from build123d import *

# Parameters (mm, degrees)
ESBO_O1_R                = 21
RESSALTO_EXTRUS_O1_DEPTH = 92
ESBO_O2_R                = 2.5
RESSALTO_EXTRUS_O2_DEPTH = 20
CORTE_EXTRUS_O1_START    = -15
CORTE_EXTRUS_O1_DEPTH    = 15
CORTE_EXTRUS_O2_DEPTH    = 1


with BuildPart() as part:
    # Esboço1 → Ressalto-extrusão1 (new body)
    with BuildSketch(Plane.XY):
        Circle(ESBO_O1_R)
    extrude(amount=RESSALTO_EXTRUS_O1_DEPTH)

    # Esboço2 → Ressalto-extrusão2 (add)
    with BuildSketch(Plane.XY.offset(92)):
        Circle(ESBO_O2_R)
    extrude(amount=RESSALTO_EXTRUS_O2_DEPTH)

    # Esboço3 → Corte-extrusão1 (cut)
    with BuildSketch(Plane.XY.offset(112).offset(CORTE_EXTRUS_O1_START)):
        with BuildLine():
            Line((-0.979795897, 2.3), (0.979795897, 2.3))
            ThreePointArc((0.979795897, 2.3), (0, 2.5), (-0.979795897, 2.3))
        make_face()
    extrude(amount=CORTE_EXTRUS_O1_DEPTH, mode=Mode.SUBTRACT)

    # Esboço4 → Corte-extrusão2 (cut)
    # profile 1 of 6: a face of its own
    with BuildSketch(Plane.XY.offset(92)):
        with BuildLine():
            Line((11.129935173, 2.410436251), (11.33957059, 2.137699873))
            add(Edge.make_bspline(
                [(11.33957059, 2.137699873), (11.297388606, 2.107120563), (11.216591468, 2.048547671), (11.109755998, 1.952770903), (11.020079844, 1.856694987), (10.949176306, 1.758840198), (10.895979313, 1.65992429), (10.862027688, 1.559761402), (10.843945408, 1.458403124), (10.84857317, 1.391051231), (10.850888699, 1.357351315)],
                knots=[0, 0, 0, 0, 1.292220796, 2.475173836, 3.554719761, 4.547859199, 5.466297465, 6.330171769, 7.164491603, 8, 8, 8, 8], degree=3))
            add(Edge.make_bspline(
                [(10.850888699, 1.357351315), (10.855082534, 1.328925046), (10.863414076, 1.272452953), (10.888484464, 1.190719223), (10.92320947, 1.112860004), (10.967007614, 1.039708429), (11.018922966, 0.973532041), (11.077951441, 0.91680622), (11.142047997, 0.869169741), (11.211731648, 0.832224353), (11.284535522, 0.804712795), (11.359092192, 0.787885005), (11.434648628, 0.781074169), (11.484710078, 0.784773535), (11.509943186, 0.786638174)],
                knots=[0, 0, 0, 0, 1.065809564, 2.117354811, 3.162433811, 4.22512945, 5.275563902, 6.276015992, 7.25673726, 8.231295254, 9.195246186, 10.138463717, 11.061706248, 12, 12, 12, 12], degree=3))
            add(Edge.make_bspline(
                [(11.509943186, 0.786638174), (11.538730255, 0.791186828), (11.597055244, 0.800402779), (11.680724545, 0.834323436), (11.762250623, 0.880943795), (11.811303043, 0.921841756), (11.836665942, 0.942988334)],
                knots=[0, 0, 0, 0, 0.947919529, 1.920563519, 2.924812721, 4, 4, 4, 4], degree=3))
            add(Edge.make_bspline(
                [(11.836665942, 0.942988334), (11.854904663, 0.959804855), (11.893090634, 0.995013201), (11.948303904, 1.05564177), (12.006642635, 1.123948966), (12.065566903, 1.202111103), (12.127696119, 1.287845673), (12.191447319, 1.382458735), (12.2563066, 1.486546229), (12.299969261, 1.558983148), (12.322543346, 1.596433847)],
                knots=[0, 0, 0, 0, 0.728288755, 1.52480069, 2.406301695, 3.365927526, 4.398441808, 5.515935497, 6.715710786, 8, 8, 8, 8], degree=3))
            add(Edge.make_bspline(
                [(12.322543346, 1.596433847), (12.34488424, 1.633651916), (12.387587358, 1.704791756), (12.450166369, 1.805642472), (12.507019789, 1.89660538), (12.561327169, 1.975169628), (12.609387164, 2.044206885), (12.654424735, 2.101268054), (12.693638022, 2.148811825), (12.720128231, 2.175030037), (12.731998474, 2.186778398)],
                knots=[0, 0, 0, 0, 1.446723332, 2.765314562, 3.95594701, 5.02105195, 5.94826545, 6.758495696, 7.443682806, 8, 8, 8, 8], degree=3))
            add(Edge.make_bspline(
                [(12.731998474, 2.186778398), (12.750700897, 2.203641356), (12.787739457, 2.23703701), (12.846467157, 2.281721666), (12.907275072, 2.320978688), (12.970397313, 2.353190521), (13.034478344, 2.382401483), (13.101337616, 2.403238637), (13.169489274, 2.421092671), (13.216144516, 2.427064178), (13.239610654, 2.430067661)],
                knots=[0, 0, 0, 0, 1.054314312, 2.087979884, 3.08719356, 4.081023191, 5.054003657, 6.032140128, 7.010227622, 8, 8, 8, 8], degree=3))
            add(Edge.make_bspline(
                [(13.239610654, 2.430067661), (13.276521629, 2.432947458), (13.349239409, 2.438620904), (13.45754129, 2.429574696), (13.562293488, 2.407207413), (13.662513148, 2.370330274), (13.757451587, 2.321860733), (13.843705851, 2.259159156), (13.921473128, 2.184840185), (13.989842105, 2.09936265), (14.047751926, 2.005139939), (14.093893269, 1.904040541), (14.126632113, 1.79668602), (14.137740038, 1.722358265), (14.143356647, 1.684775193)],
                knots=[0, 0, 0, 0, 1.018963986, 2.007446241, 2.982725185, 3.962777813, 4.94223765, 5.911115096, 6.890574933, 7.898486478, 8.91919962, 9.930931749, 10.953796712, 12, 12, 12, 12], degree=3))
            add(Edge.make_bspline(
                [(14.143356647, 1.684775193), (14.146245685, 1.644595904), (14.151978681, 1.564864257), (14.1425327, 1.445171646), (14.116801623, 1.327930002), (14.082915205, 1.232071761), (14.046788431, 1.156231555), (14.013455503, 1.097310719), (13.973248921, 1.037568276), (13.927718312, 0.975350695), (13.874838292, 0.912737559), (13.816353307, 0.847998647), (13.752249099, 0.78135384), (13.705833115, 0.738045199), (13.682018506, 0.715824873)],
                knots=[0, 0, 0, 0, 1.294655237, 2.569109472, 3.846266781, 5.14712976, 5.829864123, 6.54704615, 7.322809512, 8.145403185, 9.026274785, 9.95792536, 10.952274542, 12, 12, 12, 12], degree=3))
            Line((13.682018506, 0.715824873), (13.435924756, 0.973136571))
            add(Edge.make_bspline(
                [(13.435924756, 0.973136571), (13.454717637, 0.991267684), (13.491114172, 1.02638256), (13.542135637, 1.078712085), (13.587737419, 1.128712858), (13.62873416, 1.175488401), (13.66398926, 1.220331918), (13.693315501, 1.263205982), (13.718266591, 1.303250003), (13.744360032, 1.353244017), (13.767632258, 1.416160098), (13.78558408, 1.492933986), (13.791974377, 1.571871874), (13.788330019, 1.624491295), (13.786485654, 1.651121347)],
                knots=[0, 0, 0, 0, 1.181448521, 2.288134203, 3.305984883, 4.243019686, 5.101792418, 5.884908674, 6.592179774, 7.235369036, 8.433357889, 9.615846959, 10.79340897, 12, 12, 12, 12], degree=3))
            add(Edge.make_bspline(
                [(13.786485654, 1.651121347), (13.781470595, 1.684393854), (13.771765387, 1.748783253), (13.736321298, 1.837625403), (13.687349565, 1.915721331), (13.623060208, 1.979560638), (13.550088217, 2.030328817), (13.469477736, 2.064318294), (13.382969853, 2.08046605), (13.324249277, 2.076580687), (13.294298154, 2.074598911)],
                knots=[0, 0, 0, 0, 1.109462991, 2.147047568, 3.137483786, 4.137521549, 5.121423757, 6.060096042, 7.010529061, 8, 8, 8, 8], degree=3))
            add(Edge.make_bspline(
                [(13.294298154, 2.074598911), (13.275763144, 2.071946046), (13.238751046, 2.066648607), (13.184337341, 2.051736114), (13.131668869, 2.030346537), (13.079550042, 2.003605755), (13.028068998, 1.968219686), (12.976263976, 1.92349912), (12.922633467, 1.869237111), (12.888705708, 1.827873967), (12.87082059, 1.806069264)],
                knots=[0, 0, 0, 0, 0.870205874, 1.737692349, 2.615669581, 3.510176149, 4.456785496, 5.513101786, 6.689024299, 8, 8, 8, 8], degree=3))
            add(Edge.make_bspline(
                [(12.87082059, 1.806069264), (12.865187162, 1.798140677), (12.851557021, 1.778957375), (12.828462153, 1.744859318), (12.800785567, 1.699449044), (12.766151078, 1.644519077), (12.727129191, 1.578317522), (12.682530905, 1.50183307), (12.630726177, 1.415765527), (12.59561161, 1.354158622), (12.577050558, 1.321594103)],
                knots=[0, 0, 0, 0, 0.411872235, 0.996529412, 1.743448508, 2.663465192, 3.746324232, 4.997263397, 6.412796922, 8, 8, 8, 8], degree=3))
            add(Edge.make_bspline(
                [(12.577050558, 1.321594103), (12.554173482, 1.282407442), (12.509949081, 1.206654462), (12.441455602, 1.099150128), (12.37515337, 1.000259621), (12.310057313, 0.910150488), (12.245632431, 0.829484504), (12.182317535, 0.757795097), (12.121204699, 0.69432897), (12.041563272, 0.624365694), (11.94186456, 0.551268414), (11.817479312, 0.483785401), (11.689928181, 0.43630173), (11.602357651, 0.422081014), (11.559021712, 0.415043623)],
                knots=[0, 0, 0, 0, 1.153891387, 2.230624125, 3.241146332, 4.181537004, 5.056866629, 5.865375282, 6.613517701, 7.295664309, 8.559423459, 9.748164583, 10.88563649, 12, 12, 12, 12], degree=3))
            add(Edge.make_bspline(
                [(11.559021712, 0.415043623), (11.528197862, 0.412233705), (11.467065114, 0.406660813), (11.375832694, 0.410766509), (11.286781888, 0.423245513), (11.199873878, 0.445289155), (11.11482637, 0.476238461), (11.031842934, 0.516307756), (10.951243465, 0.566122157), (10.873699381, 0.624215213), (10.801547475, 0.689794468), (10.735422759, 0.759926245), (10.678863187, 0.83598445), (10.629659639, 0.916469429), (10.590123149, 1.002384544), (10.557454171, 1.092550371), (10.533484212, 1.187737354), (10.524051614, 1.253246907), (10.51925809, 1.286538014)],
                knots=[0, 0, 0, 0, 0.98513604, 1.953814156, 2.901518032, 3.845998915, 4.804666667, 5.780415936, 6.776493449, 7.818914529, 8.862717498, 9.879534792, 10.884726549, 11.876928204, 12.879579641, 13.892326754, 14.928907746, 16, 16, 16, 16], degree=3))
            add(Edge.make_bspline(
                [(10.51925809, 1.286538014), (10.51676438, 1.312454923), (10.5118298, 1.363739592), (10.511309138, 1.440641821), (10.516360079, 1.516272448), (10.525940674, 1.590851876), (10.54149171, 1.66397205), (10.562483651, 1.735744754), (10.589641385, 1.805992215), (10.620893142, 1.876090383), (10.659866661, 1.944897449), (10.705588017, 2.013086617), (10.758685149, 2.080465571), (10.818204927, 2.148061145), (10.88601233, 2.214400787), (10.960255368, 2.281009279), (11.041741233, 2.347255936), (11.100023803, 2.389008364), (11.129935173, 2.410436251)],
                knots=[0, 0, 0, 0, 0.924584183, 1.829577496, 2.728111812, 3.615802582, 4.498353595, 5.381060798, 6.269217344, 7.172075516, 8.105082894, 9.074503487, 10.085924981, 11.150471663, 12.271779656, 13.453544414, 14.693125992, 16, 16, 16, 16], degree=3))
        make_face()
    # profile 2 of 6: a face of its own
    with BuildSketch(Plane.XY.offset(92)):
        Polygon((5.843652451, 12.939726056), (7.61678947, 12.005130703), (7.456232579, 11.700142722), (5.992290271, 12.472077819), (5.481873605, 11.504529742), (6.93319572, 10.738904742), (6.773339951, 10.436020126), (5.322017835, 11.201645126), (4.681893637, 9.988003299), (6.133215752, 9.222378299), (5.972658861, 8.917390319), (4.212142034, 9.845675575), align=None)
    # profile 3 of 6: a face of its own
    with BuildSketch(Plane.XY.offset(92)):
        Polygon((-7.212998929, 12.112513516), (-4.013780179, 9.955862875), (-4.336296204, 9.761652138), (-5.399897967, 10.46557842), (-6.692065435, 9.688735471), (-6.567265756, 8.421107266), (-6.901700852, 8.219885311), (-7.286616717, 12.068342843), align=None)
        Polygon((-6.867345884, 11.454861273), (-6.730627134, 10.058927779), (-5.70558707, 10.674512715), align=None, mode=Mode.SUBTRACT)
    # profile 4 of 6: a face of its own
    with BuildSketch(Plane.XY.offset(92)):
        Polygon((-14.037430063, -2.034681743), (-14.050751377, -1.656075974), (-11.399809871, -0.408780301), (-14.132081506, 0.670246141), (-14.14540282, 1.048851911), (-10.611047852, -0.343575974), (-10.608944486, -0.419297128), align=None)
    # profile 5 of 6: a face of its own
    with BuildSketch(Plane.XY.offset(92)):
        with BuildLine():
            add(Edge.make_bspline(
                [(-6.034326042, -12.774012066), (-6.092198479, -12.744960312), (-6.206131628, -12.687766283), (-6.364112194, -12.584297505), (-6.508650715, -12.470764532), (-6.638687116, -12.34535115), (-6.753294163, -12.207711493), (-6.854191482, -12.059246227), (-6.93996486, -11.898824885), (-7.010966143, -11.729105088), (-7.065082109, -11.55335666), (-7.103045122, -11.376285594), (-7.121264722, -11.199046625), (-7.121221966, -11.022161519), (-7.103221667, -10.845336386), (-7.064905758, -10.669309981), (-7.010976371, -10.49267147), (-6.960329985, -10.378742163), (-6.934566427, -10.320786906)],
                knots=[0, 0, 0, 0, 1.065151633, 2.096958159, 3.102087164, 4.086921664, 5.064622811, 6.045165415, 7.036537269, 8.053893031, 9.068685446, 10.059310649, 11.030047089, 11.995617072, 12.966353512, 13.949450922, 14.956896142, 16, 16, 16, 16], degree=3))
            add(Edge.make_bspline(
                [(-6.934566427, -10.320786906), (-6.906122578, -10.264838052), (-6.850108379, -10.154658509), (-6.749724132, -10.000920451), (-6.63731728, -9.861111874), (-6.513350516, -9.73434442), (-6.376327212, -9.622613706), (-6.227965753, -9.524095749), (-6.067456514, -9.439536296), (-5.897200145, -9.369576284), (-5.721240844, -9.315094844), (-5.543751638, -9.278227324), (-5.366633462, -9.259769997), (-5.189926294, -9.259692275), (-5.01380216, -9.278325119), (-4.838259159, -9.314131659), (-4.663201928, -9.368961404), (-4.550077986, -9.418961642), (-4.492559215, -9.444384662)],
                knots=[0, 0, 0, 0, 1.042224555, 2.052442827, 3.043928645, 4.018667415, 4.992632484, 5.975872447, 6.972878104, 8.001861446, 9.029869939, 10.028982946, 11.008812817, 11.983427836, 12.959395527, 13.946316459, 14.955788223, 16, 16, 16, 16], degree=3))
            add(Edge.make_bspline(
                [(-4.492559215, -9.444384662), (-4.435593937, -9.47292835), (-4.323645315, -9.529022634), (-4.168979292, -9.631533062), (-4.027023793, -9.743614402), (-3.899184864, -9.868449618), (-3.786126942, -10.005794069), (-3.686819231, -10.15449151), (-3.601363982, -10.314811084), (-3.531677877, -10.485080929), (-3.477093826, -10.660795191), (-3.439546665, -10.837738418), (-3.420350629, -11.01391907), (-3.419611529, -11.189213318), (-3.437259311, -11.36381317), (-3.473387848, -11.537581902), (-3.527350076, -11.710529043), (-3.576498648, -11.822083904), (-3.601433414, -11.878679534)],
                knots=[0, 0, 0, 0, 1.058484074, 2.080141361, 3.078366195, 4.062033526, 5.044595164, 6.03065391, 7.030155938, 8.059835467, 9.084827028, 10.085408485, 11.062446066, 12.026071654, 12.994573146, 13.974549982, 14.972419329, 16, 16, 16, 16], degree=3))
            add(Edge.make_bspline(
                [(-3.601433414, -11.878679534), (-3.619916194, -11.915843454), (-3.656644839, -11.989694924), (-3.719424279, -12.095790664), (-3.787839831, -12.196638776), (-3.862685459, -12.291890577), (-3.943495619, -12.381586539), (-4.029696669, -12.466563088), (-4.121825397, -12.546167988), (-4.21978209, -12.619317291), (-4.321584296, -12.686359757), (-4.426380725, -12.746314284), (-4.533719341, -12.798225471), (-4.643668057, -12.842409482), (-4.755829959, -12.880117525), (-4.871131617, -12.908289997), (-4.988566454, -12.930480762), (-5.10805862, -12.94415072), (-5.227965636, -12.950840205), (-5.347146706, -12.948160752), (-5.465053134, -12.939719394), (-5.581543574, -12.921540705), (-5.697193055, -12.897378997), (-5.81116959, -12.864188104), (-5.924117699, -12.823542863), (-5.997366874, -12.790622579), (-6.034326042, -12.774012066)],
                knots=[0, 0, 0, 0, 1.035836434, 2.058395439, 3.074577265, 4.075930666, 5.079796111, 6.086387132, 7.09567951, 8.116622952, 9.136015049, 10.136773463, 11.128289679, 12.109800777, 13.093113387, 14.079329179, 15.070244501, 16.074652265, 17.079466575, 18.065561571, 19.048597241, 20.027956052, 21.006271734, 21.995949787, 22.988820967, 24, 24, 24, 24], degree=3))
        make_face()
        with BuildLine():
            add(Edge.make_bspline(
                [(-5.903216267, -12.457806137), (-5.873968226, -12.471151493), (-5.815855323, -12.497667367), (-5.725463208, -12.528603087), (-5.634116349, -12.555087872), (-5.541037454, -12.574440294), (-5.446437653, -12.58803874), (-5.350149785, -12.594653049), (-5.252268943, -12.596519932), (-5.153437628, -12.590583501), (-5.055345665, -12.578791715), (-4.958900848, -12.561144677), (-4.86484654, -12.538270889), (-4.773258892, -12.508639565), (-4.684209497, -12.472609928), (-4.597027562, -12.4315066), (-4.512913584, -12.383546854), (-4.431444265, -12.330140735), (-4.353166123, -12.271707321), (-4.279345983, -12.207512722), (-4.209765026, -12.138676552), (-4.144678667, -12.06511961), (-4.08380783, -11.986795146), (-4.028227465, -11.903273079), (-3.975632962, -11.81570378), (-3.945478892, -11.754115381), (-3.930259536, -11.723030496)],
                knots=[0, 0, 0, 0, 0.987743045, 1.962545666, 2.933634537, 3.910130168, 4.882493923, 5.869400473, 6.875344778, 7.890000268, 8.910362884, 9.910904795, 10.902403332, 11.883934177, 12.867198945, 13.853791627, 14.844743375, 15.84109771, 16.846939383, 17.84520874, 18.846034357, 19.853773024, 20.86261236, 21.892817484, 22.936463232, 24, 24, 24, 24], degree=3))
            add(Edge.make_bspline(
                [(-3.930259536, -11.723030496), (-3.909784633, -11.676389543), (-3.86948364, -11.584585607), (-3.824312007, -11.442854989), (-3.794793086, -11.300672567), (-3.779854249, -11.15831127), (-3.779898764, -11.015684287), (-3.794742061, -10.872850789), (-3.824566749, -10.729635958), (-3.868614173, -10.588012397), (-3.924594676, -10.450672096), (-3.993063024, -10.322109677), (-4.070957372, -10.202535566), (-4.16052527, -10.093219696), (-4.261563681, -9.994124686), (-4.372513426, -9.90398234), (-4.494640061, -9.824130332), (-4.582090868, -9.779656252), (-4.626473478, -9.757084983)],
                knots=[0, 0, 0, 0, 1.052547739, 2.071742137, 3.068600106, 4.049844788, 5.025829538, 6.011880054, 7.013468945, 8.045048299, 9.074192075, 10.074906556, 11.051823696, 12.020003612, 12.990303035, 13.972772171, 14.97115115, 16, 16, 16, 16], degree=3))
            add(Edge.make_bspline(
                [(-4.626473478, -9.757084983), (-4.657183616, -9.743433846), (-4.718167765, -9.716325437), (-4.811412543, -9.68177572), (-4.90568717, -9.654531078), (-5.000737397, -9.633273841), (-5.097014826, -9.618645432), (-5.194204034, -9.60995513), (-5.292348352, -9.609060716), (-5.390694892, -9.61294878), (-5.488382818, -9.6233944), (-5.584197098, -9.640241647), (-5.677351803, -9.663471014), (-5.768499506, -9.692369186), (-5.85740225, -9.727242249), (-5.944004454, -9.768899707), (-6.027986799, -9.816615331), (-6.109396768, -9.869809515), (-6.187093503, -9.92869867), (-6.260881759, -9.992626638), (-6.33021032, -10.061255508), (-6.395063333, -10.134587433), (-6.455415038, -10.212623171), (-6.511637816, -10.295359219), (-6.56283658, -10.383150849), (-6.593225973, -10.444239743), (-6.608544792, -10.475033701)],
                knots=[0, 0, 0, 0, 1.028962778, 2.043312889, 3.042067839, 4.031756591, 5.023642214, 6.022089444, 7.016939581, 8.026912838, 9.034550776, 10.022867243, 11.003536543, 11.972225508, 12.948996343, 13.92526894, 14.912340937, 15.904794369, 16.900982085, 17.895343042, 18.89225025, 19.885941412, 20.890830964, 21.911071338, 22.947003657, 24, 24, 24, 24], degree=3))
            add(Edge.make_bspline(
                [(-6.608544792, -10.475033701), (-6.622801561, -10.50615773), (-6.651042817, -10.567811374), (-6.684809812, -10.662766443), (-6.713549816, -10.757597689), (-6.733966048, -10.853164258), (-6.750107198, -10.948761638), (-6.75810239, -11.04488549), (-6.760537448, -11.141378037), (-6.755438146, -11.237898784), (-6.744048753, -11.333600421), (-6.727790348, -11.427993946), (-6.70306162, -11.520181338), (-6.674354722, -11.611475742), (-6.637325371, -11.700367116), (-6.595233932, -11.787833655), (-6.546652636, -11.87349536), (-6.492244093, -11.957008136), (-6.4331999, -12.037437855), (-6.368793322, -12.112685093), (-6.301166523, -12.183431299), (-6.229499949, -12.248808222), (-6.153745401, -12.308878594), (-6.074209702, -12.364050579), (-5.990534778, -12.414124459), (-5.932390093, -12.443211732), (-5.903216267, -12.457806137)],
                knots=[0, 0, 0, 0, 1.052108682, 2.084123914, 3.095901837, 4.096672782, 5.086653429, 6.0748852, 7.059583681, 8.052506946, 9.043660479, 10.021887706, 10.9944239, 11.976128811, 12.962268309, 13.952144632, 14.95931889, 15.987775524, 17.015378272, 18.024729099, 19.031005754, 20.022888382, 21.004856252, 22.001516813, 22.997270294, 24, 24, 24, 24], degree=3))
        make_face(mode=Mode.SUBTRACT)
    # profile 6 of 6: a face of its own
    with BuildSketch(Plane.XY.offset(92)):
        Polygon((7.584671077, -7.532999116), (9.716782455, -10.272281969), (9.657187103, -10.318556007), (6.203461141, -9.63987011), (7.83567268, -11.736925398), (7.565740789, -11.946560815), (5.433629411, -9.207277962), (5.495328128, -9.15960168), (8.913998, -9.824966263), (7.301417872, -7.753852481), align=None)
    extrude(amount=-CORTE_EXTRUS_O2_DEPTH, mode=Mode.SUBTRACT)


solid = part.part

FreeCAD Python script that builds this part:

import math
import FreeCAD as App
import Part
import Sketcher

V = App.Vector


def add_polygon(sketch, points):
    """Adds a closed chain of lines whose ends are joined by coincident constraints."""
    first, n = sketch.GeometryCount, len(points)
    for a, b in zip(points, points[1:] + points[:1]):
        sketch.addGeometry(Part.LineSegment(App.Vector(*a, 0), App.Vector(*b, 0)), False)
    for i in range(n):
        sketch.addConstraint(Sketcher.Constraint("Coincident", first + i, 2, first + (i + 1) % n, 1))

doc = App.newDocument("Part")
body = doc.addObject("PartDesign::Body", "Body")

sketch1 = doc.addObject("Sketcher::SketchObject", "Sketch")
body.addObject(sketch1)
sketch1.AttachmentSupport = (doc.XY_Plane, [""])
sketch1.MapMode = "FlatFace"
sketch1.addGeometry(Part.Circle(V(0, 0, 0), V(0, 0, 1), 21), False)
sketch1.addConstraint([
    Sketcher.Constraint("Coincident", 0, 3, -1, 1),
    Sketcher.Constraint("Diameter", 0, 42.0),
])
pad1 = doc.addObject("PartDesign::Pad", "Pad")
body.addObject(pad1)
pad1.Profile = sketch1
pad1.Length = 92

sketch2 = doc.addObject("Sketcher::SketchObject", "Sketch001")
body.addObject(sketch2)
sketch2.AttachmentSupport = (doc.XY_Plane, [""])
sketch2.MapMode = "FlatFace"
sketch2.AttachmentOffset = App.Placement(V(0, 0, 92), App.Rotation())
sketch2.addGeometry(Part.Circle(V(0, 0, 0), V(0, 0, 1), 2.5), False)
sketch2.addConstraint([
    Sketcher.Constraint("Coincident", 0, 3, -1, 1),
    Sketcher.Constraint("Diameter", 0, 5.0),
])
pad2 = doc.addObject("PartDesign::Pad", "Pad001")
body.addObject(pad2)
pad2.Profile = sketch2
pad2.Length = 20

sketch3 = doc.addObject("Sketcher::SketchObject", "Sketch002")
body.addObject(sketch3)
sketch3.AttachmentSupport = (doc.XY_Plane, [""])
sketch3.MapMode = "FlatFace"
sketch3.AttachmentOffset = App.Placement(V(0, 0, 97), App.Rotation())
sketch3.addGeometry([
    Part.LineSegment(V(-1, 2.3, 0), V(1, 2.3, 0)),
    Part.ArcOfCircle(Part.Circle(V(0, 0, 0), V(0, 0, 1), 2.5), math.radians(67), math.radians(113)),
], False)
sketch3.addConstraint([
    Sketcher.Constraint("Coincident", 0, 1, 1, 2),
    Sketcher.Constraint("Coincident", 1, 1, 0, 2),
    Sketcher.Constraint("Horizontal", 0),
    Sketcher.Constraint("Coincident", 1, 3, -1, 1),
    Sketcher.Constraint("Radius", 1, 2.5),
    Sketcher.Constraint("DistanceY", -1, 1, 0, 1, 2.3),
])
pocket1 = doc.addObject("PartDesign::Pocket", "Pocket")
body.addObject(pocket1)
pocket1.Profile = sketch3
pocket1.Length = 15
pocket1.Reversed = True

sketch4 = doc.addObject("Sketcher::SketchObject", "Sketch003")
body.addObject(sketch4)
sketch4.AttachmentSupport = (doc.XY_Plane, [""])
sketch4.MapMode = "FlatFace"
sketch4.AttachmentOffset = App.Placement(V(0, 0, 92), App.Rotation())
sketch4.addGeometry(Part.LineSegment(V(11.339571, 2.1377, 0), V(11.129935, 2.410436, 0)), False)
sketch4.addGeometry(Part.BSplineCurve([V(10.519258, 1.286538, 0), V(10.516764, 1.312455, 0), V(10.51183, 1.36374, 0), V(10.511309, 1.440642, 0), V(10.51636, 1.516272, 0), V(10.525941, 1.590852, 0), V(10.541492, 1.663972, 0), V(10.562484, 1.735745, 0), V(10.589641, 1.805992, 0), V(10.620893, 1.87609, 0), V(10.659867, 1.944897, 0), V(10.705588, 2.013087, 0), V(10.758685, 2.080466, 0), V(10.818205, 2.148061, 0), V(10.886012, 2.214401, 0), V(10.960255, 2.281009, 0), V(11.041741, 2.347256, 0), V(11.100024, 2.389008, 0), V(11.129935, 2.410436, 0)], [4, 1, 1, 1, 1, 1, 1, 1, 1, 1, 1, 1, 1, 1, 1, 1, 4], [0, 0.924584183, 1.829577496, 2.728111812, 3.615802582, 4.498353595, 5.381060798, 6.269217344, 7.172075516, 8.105082894, 9.074503487, 10.085924981, 11.150471663, 12.271779656, 13.453544414, 14.693125992, 16], False, 3, [1, 1, 1, 1, 1, 1, 1, 1, 1, 1, 1, 1, 1, 1, 1, 1, 1, 1, 1], False), False)
sketch4.addGeometry(Part.BSplineCurve([V(11.559022, 0.415044, 0), V(11.528198, 0.412234, 0), V(11.467065, 0.406661, 0), V(11.375833, 0.410767, 0), V(11.286782, 0.423246, 0), V(11.199874, 0.445289, 0), V(11.114826, 0.476238, 0), V(11.031843, 0.516308, 0), V(10.951243, 0.566122, 0), V(10.873699, 0.624215, 0), V(10.801547, 0.689794, 0), V(10.735423, 0.759926, 0), V(10.678863, 0.835984, 0), V(10.62966, 0.916469, 0), V(10.590123, 1.002385, 0), V(10.557454, 1.09255, 0), V(10.533484, 1.187737, 0), V(10.524052, 1.253247, 0), V(10.519258, 1.286538, 0)], [4, 1, 1, 1, 1, 1, 1, 1, 1, 1, 1, 1, 1, 1, 1, 1, 4], [0, 0.98513604, 1.953814156, 2.901518032, 3.845998915, 4.804666667, 5.780415936, 6.776493449, 7.818914529, 8.862717498, 9.879534792, 10.884726549, 11.876928204, 12.879579641, 13.892326754, 14.928907746, 16], False, 3, [1, 1, 1, 1, 1, 1, 1, 1, 1, 1, 1, 1, 1, 1, 1, 1, 1, 1, 1], False), False)
sketch4.addGeometry(Part.BSplineCurve([V(12.577051, 1.321594, 0), V(12.554173, 1.282407, 0), V(12.509949, 1.206654, 0), V(12.441456, 1.09915, 0), V(12.375153, 1.00026, 0), V(12.310057, 0.91015, 0), V(12.245632, 0.829485, 0), V(12.182318, 0.757795, 0), V(12.121205, 0.694329, 0), V(12.041563, 0.624366, 0), V(11.941865, 0.551268, 0), V(11.817479, 0.483785, 0), V(11.689928, 0.436302, 0), V(11.602358, 0.422081, 0), V(11.559022, 0.415044, 0)], [4, 1, 1, 1, 1, 1, 1, 1, 1, 1, 1, 1, 4], [0, 1.153891387, 2.230624125, 3.241146332, 4.181537004, 5.056866629, 5.865375282, 6.613517701, 7.295664309, 8.559423459, 9.748164583, 10.88563649, 12], False, 3, [1, 1, 1, 1, 1, 1, 1, 1, 1, 1, 1, 1, 1, 1, 1], False), False)
sketch4.addGeometry(Part.BSplineCurve([V(12.870821, 1.806069, 0), V(12.865187, 1.798141, 0), V(12.851557, 1.778957, 0), V(12.828462, 1.744859, 0), V(12.800786, 1.699449, 0), V(12.766151, 1.644519, 0), V(12.727129, 1.578318, 0), V(12.682531, 1.501833, 0), V(12.630726, 1.415766, 0), V(12.595612, 1.354159, 0), V(12.577051, 1.321594, 0)], [4, 1, 1, 1, 1, 1, 1, 1, 4], [0, 0.411872235, 0.996529412, 1.743448508, 2.663465192, 3.746324232, 4.997263397, 6.412796922, 8], False, 3, [1, 1, 1, 1, 1, 1, 1, 1, 1, 1, 1], False), False)
sketch4.addGeometry(Part.BSplineCurve([V(13.294298, 2.074599, 0), V(13.275763, 2.071946, 0), V(13.238751, 2.066649, 0), V(13.184337, 2.051736, 0), V(13.131669, 2.030347, 0), V(13.07955, 2.003606, 0), V(13.028069, 1.96822, 0), V(12.976264, 1.923499, 0), V(12.922633, 1.869237, 0), V(12.888706, 1.827874, 0), V(12.870821, 1.806069, 0)], [4, 1, 1, 1, 1, 1, 1, 1, 4], [0, 0.870205874, 1.737692349, 2.615669581, 3.510176149, 4.456785496, 5.513101786, 6.689024299, 8], False, 3, [1, 1, 1, 1, 1, 1, 1, 1, 1, 1, 1], False), False)
sketch4.addGeometry(Part.BSplineCurve([V(13.786486, 1.651121, 0), V(13.781471, 1.684394, 0), V(13.771765, 1.748783, 0), V(13.736321, 1.837625, 0), V(13.68735, 1.915721, 0), V(13.62306, 1.979561, 0), V(13.550088, 2.030329, 0), V(13.469478, 2.064318, 0), V(13.38297, 2.080466, 0), V(13.324249, 2.076581, 0), V(13.294298, 2.074599, 0)], [4, 1, 1, 1, 1, 1, 1, 1, 4], [0, 1.109462991, 2.147047568, 3.137483786, 4.137521549, 5.121423757, 6.060096042, 7.010529061, 8], False, 3, [1, 1, 1, 1, 1, 1, 1, 1, 1, 1, 1], False), False)
sketch4.addGeometry(Part.BSplineCurve([V(13.435925, 0.973137, 0), V(13.454718, 0.991268, 0), V(13.491114, 1.026383, 0), V(13.542136, 1.078712, 0), V(13.587737, 1.128713, 0), V(13.628734, 1.175488, 0), V(13.663989, 1.220332, 0), V(13.693316, 1.263206, 0), V(13.718267, 1.30325, 0), V(13.74436, 1.353244, 0), V(13.767632, 1.41616, 0), V(13.785584, 1.492934, 0), V(13.791974, 1.571872, 0), V(13.78833, 1.624491, 0), V(13.786486, 1.651121, 0)], [4, 1, 1, 1, 1, 1, 1, 1, 1, 1, 1, 1, 4], [0, 1.181448521, 2.288134203, 3.305984883, 4.243019686, 5.101792418, 5.884908674, 6.592179774, 7.235369036, 8.433357889, 9.615846959, 10.79340897, 12], False, 3, [1, 1, 1, 1, 1, 1, 1, 1, 1, 1, 1, 1, 1, 1, 1], False), False)
sketch4.addGeometry(Part.LineSegment(V(13.435925, 0.973137, 0), V(13.682019, 0.715825, 0)), False)
sketch4.addGeometry(Part.BSplineCurve([V(14.143357, 1.684775, 0), V(14.146246, 1.644596, 0), V(14.151979, 1.564864, 0), V(14.142533, 1.445172, 0), V(14.116802, 1.32793, 0), V(14.082915, 1.232072, 0), V(14.046788, 1.156232, 0), V(14.013456, 1.097311, 0), V(13.973249, 1.037568, 0), V(13.927718, 0.975351, 0), V(13.874838, 0.912738, 0), V(13.816353, 0.847999, 0), V(13.752249, 0.781354, 0), V(13.705833, 0.738045, 0), V(13.682019, 0.715825, 0)], [4, 1, 1, 1, 1, 1, 1, 1, 1, 1, 1, 1, 4], [0, 1.294655237, 2.569109472, 3.846266781, 5.14712976, 5.829864123, 6.54704615, 7.322809512, 8.145403185, 9.026274785, 9.95792536, 10.952274542, 12], False, 3, [1, 1, 1, 1, 1, 1, 1, 1, 1, 1, 1, 1, 1, 1, 1], False), False)
sketch4.addGeometry(Part.BSplineCurve([V(13.239611, 2.430068, 0), V(13.276522, 2.432947, 0), V(13.349239, 2.438621, 0), V(13.457541, 2.429575, 0), V(13.562293, 2.407207, 0), V(13.662513, 2.37033, 0), V(13.757452, 2.321861, 0), V(13.843706, 2.259159, 0), V(13.921473, 2.18484, 0), V(13.989842, 2.099363, 0), V(14.047752, 2.00514, 0), V(14.093893, 1.904041, 0), V(14.126632, 1.796686, 0), V(14.13774, 1.722358, 0), V(14.143357, 1.684775, 0)], [4, 1, 1, 1, 1, 1, 1, 1, 1, 1, 1, 1, 4], [0, 1.018963986, 2.007446241, 2.982725185, 3.962777813, 4.94223765, 5.911115096, 6.890574933, 7.898486478, 8.91919962, 9.930931749, 10.953796712, 12], False, 3, [1, 1, 1, 1, 1, 1, 1, 1, 1, 1, 1, 1, 1, 1, 1], False), False)
sketch4.addGeometry(Part.BSplineCurve([V(12.731998, 2.186778, 0), V(12.750701, 2.203641, 0), V(12.787739, 2.237037, 0), V(12.846467, 2.281722, 0), V(12.907275, 2.320979, 0), V(12.970397, 2.353191, 0), V(13.034478, 2.382401, 0), V(13.101338, 2.403239, 0), V(13.169489, 2.421093, 0), V(13.216145, 2.427064, 0), V(13.239611, 2.430068, 0)], [4, 1, 1, 1, 1, 1, 1, 1, 4], [0, 1.054314312, 2.087979884, 3.08719356, 4.081023191, 5.054003657, 6.032140128, 7.010227622, 8], False, 3, [1, 1, 1, 1, 1, 1, 1, 1, 1, 1, 1], False), False)
sketch4.addGeometry(Part.BSplineCurve([V(12.322543, 1.596434, 0), V(12.344884, 1.633652, 0), V(12.387587, 1.704792, 0), V(12.450166, 1.805642, 0), V(12.50702, 1.896605, 0), V(12.561327, 1.97517, 0), V(12.609387, 2.044207, 0), V(12.654425, 2.101268, 0), V(12.693638, 2.148812, 0), V(12.720128, 2.17503, 0), V(12.731998, 2.186778, 0)], [4, 1, 1, 1, 1, 1, 1, 1, 4], [0, 1.446723332, 2.765314562, 3.95594701, 5.02105195, 5.94826545, 6.758495696, 7.443682806, 8], False, 3, [1, 1, 1, 1, 1, 1, 1, 1, 1, 1, 1], False), False)
sketch4.addGeometry(Part.BSplineCurve([V(11.836666, 0.942988, 0), V(11.854905, 0.959805, 0), V(11.893091, 0.995013, 0), V(11.948304, 1.055642, 0), V(12.006643, 1.123949, 0), V(12.065567, 1.202111, 0), V(12.127696, 1.287846, 0), V(12.191447, 1.382459, 0), V(12.256307, 1.486546, 0), V(12.299969, 1.558983, 0), V(12.322543, 1.596434, 0)], [4, 1, 1, 1, 1, 1, 1, 1, 4], [0, 0.728288755, 1.52480069, 2.406301695, 3.365927526, 4.398441808, 5.515935497, 6.715710786, 8], False, 3, [1, 1, 1, 1, 1, 1, 1, 1, 1, 1, 1], False), False)
sketch4.addGeometry(Part.BSplineCurve([V(11.509943, 0.786638, 0), V(11.53873, 0.791187, 0), V(11.597055, 0.800403, 0), V(11.680725, 0.834323, 0), V(11.762251, 0.880944, 0), V(11.811303, 0.921842, 0), V(11.836666, 0.942988, 0)], [4, 1, 1, 1, 4], [0, 0.947919529, 1.920563519, 2.924812721, 4], False, 3, [1, 1, 1, 1, 1, 1, 1], False), False)
sketch4.addGeometry(Part.BSplineCurve([V(10.850889, 1.357351, 0), V(10.855083, 1.328925, 0), V(10.863414, 1.272453, 0), V(10.888484, 1.190719, 0), V(10.923209, 1.11286, 0), V(10.967008, 1.039708, 0), V(11.018923, 0.973532, 0), V(11.077951, 0.916806, 0), V(11.142048, 0.86917, 0), V(11.211732, 0.832224, 0), V(11.284536, 0.804713, 0), V(11.359092, 0.787885, 0), V(11.434649, 0.781074, 0), V(11.48471, 0.784774, 0), V(11.509943, 0.786638, 0)], [4, 1, 1, 1, 1, 1, 1, 1, 1, 1, 1, 1, 4], [0, 1.065809564, 2.117354811, 3.162433811, 4.22512945, 5.275563902, 6.276015992, 7.25673726, 8.231295254, 9.195246186, 10.138463717, 11.061706248, 12], False, 3, [1, 1, 1, 1, 1, 1, 1, 1, 1, 1, 1, 1, 1, 1, 1], False), False)
sketch4.addGeometry(Part.BSplineCurve([V(11.339571, 2.1377, 0), V(11.297389, 2.107121, 0), V(11.216591, 2.048548, 0), V(11.109756, 1.952771, 0), V(11.02008, 1.856695, 0), V(10.949176, 1.75884, 0), V(10.895979, 1.659924, 0), V(10.862028, 1.559761, 0), V(10.843945, 1.458403, 0), V(10.848573, 1.391051, 0), V(10.850889, 1.357351, 0)], [4, 1, 1, 1, 1, 1, 1, 1, 4], [0, 1.292220796, 2.475173836, 3.554719761, 4.547859199, 5.466297465, 6.330171769, 7.164491603, 8], False, 3, [1, 1, 1, 1, 1, 1, 1, 1, 1, 1, 1], False), False)
add_polygon(sketch4, [(7.616789, 12.005131), (5.843652, 12.939726), (4.212142, 9.845676), (5.972659, 8.91739), (6.133216, 9.222378), (4.681894, 9.988003), (5.322018, 11.201645), (6.77334, 10.43602), (6.933196, 10.738905), (5.481874, 11.50453), (5.99229, 12.472078), (7.456233, 11.700143)])
add_polygon(sketch4, [(-4.01378, 9.955863), (-7.212999, 12.112514), (-7.286617, 12.068343), (-6.901701, 8.219885), (-6.567266, 8.421107), (-6.692065, 9.688735), (-5.399898, 10.465578), (-4.336296, 9.761652)])
add_polygon(sketch4, [(-6.867346, 11.454861), (-5.705587, 10.674513), (-6.730627, 10.058928)])
add_polygon(sketch4, [(-14.050751, -1.656076), (-14.03743, -2.034682), (-10.608944, -0.419297), (-10.611048, -0.343576), (-14.145403, 1.048852), (-14.132082, 0.670246), (-11.39981, -0.40878)])
sketch4.addGeometry(Part.BSplineCurve([V(-6.034326, -12.774012, 0), V(-6.092198, -12.74496, 0), V(-6.206132, -12.687766, 0), V(-6.364112, -12.584298, 0), V(-6.508651, -12.470765, 0), V(-6.638687, -12.345351, 0), V(-6.753294, -12.207711, 0), V(-6.854191, -12.059246, 0), V(-6.939965, -11.898825, 0), V(-7.010966, -11.729105, 0), V(-7.065082, -11.553357, 0), V(-7.103045, -11.376286, 0), V(-7.121265, -11.199047, 0), V(-7.121222, -11.022162, 0), V(-7.103222, -10.845336, 0), V(-7.064906, -10.66931, 0), V(-7.010976, -10.492671, 0), V(-6.96033, -10.378742, 0), V(-6.934566, -10.320787, 0)], [4, 1, 1, 1, 1, 1, 1, 1, 1, 1, 1, 1, 1, 1, 1, 1, 4], [0, 1.065151633, 2.096958159, 3.102087164, 4.086921664, 5.064622811, 6.045165415, 7.036537269, 8.053893031, 9.068685446, 10.059310649, 11.030047089, 11.995617072, 12.966353512, 13.949450922, 14.956896142, 16], False, 3, [1, 1, 1, 1, 1, 1, 1, 1, 1, 1, 1, 1, 1, 1, 1, 1, 1, 1, 1], False), False)
sketch4.addGeometry(Part.BSplineCurve([V(-3.601433, -11.87868, 0), V(-3.619916, -11.915843, 0), V(-3.656645, -11.989695, 0), V(-3.719424, -12.095791, 0), V(-3.78784, -12.196639, 0), V(-3.862685, -12.291891, 0), V(-3.943496, -12.381587, 0), V(-4.029697, -12.466563, 0), V(-4.121825, -12.546168, 0), V(-4.219782, -12.619317, 0), V(-4.321584, -12.68636, 0), V(-4.426381, -12.746314, 0), V(-4.533719, -12.798225, 0), V(-4.643668, -12.842409, 0), V(-4.75583, -12.880118, 0), V(-4.871132, -12.90829, 0), V(-4.988566, -12.930481, 0), V(-5.108059, -12.944151, 0), V(-5.227966, -12.95084, 0), V(-5.347147, -12.948161, 0), V(-5.465053, -12.939719, 0), V(-5.581544, -12.921541, 0), V(-5.697193, -12.897379, 0), V(-5.81117, -12.864188, 0), V(-5.924118, -12.823543, 0), V(-5.997367, -12.790623, 0), V(-6.034326, -12.774012, 0)], [4, 1, 1, 1, 1, 1, 1, 1, 1, 1, 1, 1, 1, 1, 1, 1, 1, 1, 1, 1, 1, 1, 1, 1, 4], [0, 1.035836434, 2.058395439, 3.074577265, 4.075930666, 5.079796111, 6.086387132, 7.09567951, 8.116622952, 9.136015049, 10.136773463, 11.128289679, 12.109800777, 13.093113387, 14.079329179, 15.070244501, 16.074652265, 17.079466575, 18.065561571, 19.048597241, 20.027956052, 21.006271734, 21.995949787, 22.988820967, 24], False, 3, [1, 1, 1, 1, 1, 1, 1, 1, 1, 1, 1, 1, 1, 1, 1, 1, 1, 1, 1, 1, 1, 1, 1, 1, 1, 1, 1], False), False)
sketch4.addGeometry(Part.BSplineCurve([V(-4.492559, -9.444385, 0), V(-4.435594, -9.472928, 0), V(-4.323645, -9.529023, 0), V(-4.168979, -9.631533, 0), V(-4.027024, -9.743614, 0), V(-3.899185, -9.86845, 0), V(-3.786127, -10.005794, 0), V(-3.686819, -10.154492, 0), V(-3.601364, -10.314811, 0), V(-3.531678, -10.485081, 0), V(-3.477094, -10.660795, 0), V(-3.439547, -10.837738, 0), V(-3.420351, -11.013919, 0), V(-3.419612, -11.189213, 0), V(-3.437259, -11.363813, 0), V(-3.473388, -11.537582, 0), V(-3.52735, -11.710529, 0), V(-3.576499, -11.822084, 0), V(-3.601433, -11.87868, 0)], [4, 1, 1, 1, 1, 1, 1, 1, 1, 1, 1, 1, 1, 1, 1, 1, 4], [0, 1.058484074, 2.080141361, 3.078366195, 4.062033526, 5.044595164, 6.03065391, 7.030155938, 8.059835467, 9.084827028, 10.085408485, 11.062446066, 12.026071654, 12.994573146, 13.974549982, 14.972419329, 16], False, 3, [1, 1, 1, 1, 1, 1, 1, 1, 1, 1, 1, 1, 1, 1, 1, 1, 1, 1, 1], False), False)
sketch4.addGeometry(Part.BSplineCurve([V(-6.934566, -10.320787, 0), V(-6.906123, -10.264838, 0), V(-6.850108, -10.154659, 0), V(-6.749724, -10.00092, 0), V(-6.637317, -9.861112, 0), V(-6.513351, -9.734344, 0), V(-6.376327, -9.622614, 0), V(-6.227966, -9.524096, 0), V(-6.067457, -9.439536, 0), V(-5.8972, -9.369576, 0), V(-5.721241, -9.315095, 0), V(-5.543752, -9.278227, 0), V(-5.366633, -9.25977, 0), V(-5.189926, -9.259692, 0), V(-5.013802, -9.278325, 0), V(-4.838259, -9.314132, 0), V(-4.663202, -9.368961, 0), V(-4.550078, -9.418962, 0), V(-4.492559, -9.444385, 0)], [4, 1, 1, 1, 1, 1, 1, 1, 1, 1, 1, 1, 1, 1, 1, 1, 4], [0, 1.042224555, 2.052442827, 3.043928645, 4.018667415, 4.992632484, 5.975872447, 6.972878104, 8.001861446, 9.029869939, 10.028982946, 11.008812817, 11.983427836, 12.959395527, 13.946316459, 14.955788223, 16], False, 3, [1, 1, 1, 1, 1, 1, 1, 1, 1, 1, 1, 1, 1, 1, 1, 1, 1, 1, 1], False), False)
sketch4.addGeometry(Part.BSplineCurve([V(-6.608545, -10.475034, 0), V(-6.622802, -10.506158, 0), V(-6.651043, -10.567811, 0), V(-6.68481, -10.662766, 0), V(-6.71355, -10.757598, 0), V(-6.733966, -10.853164, 0), V(-6.750107, -10.948762, 0), V(-6.758102, -11.044885, 0), V(-6.760537, -11.141378, 0), V(-6.755438, -11.237899, 0), V(-6.744049, -11.3336, 0), V(-6.72779, -11.427994, 0), V(-6.703062, -11.520181, 0), V(-6.674355, -11.611476, 0), V(-6.637325, -11.700367, 0), V(-6.595234, -11.787834, 0), V(-6.546653, -11.873495, 0), V(-6.492244, -11.957008, 0), V(-6.4332, -12.037438, 0), V(-6.368793, -12.112685, 0), V(-6.301167, -12.183431, 0), V(-6.2295, -12.248808, 0), V(-6.153745, -12.308879, 0), V(-6.07421, -12.364051, 0), V(-5.990535, -12.414124, 0), V(-5.93239, -12.443212, 0), V(-5.903216, -12.457806, 0)], [4, 1, 1, 1, 1, 1, 1, 1, 1, 1, 1, 1, 1, 1, 1, 1, 1, 1, 1, 1, 1, 1, 1, 1, 4], [0, 1.052108682, 2.084123914, 3.095901837, 4.096672782, 5.086653429, 6.0748852, 7.059583681, 8.052506946, 9.043660479, 10.021887706, 10.9944239, 11.976128811, 12.962268309, 13.952144632, 14.95931889, 15.987775524, 17.015378272, 18.024729099, 19.031005754, 20.022888382, 21.004856252, 22.001516813, 22.997270294, 24], False, 3, [1, 1, 1, 1, 1, 1, 1, 1, 1, 1, 1, 1, 1, 1, 1, 1, 1, 1, 1, 1, 1, 1, 1, 1, 1, 1, 1], False), False)
sketch4.addGeometry(Part.BSplineCurve([V(-4.626473, -9.757085, 0), V(-4.657184, -9.743434, 0), V(-4.718168, -9.716325, 0), V(-4.811413, -9.681776, 0), V(-4.905687, -9.654531, 0), V(-5.000737, -9.633274, 0), V(-5.097015, -9.618645, 0), V(-5.194204, -9.609955, 0), V(-5.292348, -9.609061, 0), V(-5.390695, -9.612949, 0), V(-5.488383, -9.623394, 0), V(-5.584197, -9.640242, 0), V(-5.677352, -9.663471, 0), V(-5.7685, -9.692369, 0), V(-5.857402, -9.727242, 0), V(-5.944004, -9.7689, 0), V(-6.027987, -9.816615, 0), V(-6.109397, -9.86981, 0), V(-6.187094, -9.928699, 0), V(-6.260882, -9.992627, 0), V(-6.33021, -10.061256, 0), V(-6.395063, -10.134587, 0), V(-6.455415, -10.212623, 0), V(-6.511638, -10.295359, 0), V(-6.562837, -10.383151, 0), V(-6.593226, -10.44424, 0), V(-6.608545, -10.475034, 0)], [4, 1, 1, 1, 1, 1, 1, 1, 1, 1, 1, 1, 1, 1, 1, 1, 1, 1, 1, 1, 1, 1, 1, 1, 4], [0, 1.028962778, 2.043312889, 3.042067839, 4.031756591, 5.023642214, 6.022089444, 7.016939581, 8.026912838, 9.034550776, 10.022867243, 11.003536543, 11.972225508, 12.948996343, 13.92526894, 14.912340937, 15.904794369, 16.900982085, 17.895343042, 18.89225025, 19.885941412, 20.890830964, 21.911071338, 22.947003657, 24], False, 3, [1, 1, 1, 1, 1, 1, 1, 1, 1, 1, 1, 1, 1, 1, 1, 1, 1, 1, 1, 1, 1, 1, 1, 1, 1, 1, 1], False), False)
sketch4.addGeometry(Part.BSplineCurve([V(-3.93026, -11.72303, 0), V(-3.909785, -11.67639, 0), V(-3.869484, -11.584586, 0), V(-3.824312, -11.442855, 0), V(-3.794793, -11.300673, 0), V(-3.779854, -11.158311, 0), V(-3.779899, -11.015684, 0), V(-3.794742, -10.872851, 0), V(-3.824567, -10.729636, 0), V(-3.868614, -10.588012, 0), V(-3.924595, -10.450672, 0), V(-3.993063, -10.32211, 0), V(-4.070957, -10.202536, 0), V(-4.160525, -10.09322, 0), V(-4.261564, -9.994125, 0), V(-4.372513, -9.903982, 0), V(-4.49464, -9.82413, 0), V(-4.582091, -9.779656, 0), V(-4.626473, -9.757085, 0)], [4, 1, 1, 1, 1, 1, 1, 1, 1, 1, 1, 1, 1, 1, 1, 1, 4], [0, 1.052547739, 2.071742137, 3.068600106, 4.049844788, 5.025829538, 6.011880054, 7.013468945, 8.045048299, 9.074192075, 10.074906556, 11.051823696, 12.020003612, 12.990303035, 13.972772171, 14.97115115, 16], False, 3, [1, 1, 1, 1, 1, 1, 1, 1, 1, 1, 1, 1, 1, 1, 1, 1, 1, 1, 1], False), False)
sketch4.addGeometry(Part.BSplineCurve([V(-5.903216, -12.457806, 0), V(-5.873968, -12.471151, 0), V(-5.815855, -12.497667, 0), V(-5.725463, -12.528603, 0), V(-5.634116, -12.555088, 0), V(-5.541037, -12.57444, 0), V(-5.446438, -12.588039, 0), V(-5.35015, -12.594653, 0), V(-5.252269, -12.59652, 0), V(-5.153438, -12.590584, 0), V(-5.055346, -12.578792, 0), V(-4.958901, -12.561145, 0), V(-4.864847, -12.538271, 0), V(-4.773259, -12.50864, 0), V(-4.684209, -12.47261, 0), V(-4.597028, -12.431507, 0), V(-4.512914, -12.383547, 0), V(-4.431444, -12.330141, 0), V(-4.353166, -12.271707, 0), V(-4.279346, -12.207513, 0), V(-4.209765, -12.138677, 0), V(-4.144679, -12.06512, 0), V(-4.083808, -11.986795, 0), V(-4.028227, -11.903273, 0), V(-3.975633, -11.815704, 0), V(-3.945479, -11.754115, 0), V(-3.93026, -11.72303, 0)], [4, 1, 1, 1, 1, 1, 1, 1, 1, 1, 1, 1, 1, 1, 1, 1, 1, 1, 1, 1, 1, 1, 1, 1, 4], [0, 0.987743045, 1.962545666, 2.933634537, 3.910130168, 4.882493923, 5.869400473, 6.875344778, 7.890000268, 8.910362884, 9.910904795, 10.902403332, 11.883934177, 12.867198945, 13.853791627, 14.844743375, 15.84109771, 16.846939383, 17.84520874, 18.846034357, 19.853773024, 20.86261236, 21.892817484, 22.936463232, 24], False, 3, [1, 1, 1, 1, 1, 1, 1, 1, 1, 1, 1, 1, 1, 1, 1, 1, 1, 1, 1, 1, 1, 1, 1, 1, 1, 1, 1], False), False)
add_polygon(sketch4, [(9.716782, -10.272282), (7.584671, -7.532999), (7.301418, -7.753852), (8.913998, -9.824966), (5.495328, -9.159602), (5.433629, -9.207278), (7.565741, -11.946561), (7.835673, -11.736925), (6.203461, -9.63987), (9.657187, -10.318556)])
sketch4.addConstraint([
    Sketcher.Constraint("Block", 1),
    Sketcher.Constraint("Block", 2),
    Sketcher.Constraint("Block", 3),
    Sketcher.Constraint("Block", 4),
    Sketcher.Constraint("Block", 5),
    Sketcher.Constraint("Block", 6),
    Sketcher.Constraint("Block", 7),
    Sketcher.Constraint("Block", 9),
    Sketcher.Constraint("Block", 10),
    Sketcher.Constraint("Block", 11),
    Sketcher.Constraint("Block", 12),
    Sketcher.Constraint("Block", 13),
    Sketcher.Constraint("Block", 14),
    Sketcher.Constraint("Block", 15),
    Sketcher.Constraint("Block", 16),
    Sketcher.Constraint("Block", 47),
    Sketcher.Constraint("Block", 48),
    Sketcher.Constraint("Block", 49),
    Sketcher.Constraint("Block", 50),
    Sketcher.Constraint("Block", 51),
    Sketcher.Constraint("Block", 52),
    Sketcher.Constraint("Block", 53),
    Sketcher.Constraint("Block", 54),
    Sketcher.Constraint("Coincident", 0, 2, 1, 2),
    Sketcher.Constraint("Coincident", 7, 1, 8, 1),
    Sketcher.Constraint("Coincident", 8, 2, 9, 2),
    Sketcher.Constraint("Coincident", 16, 1, 0, 1),
    Sketcher.Constraint("DistanceX", 29, 2, -1, 1, 7.212999),
    Sketcher.Constraint("DistanceY", 55, 2, -1, 1, 7.532999),
    Sketcher.Constraint("DistanceY", 37, 2, 29, 2, 1.438001),
    Sketcher.Constraint("DistanceX", 31, 2, -1, 1, 6.901701),
    Sketcher.Constraint("DistanceY", 58, 2, -1, 1, 9.159602),
    Sketcher.Constraint("DistanceY", 8, 2, 17, 2, 12.223901),
    Sketcher.Constraint("DistanceY", 21, 2, 24, 2, 0.750901),
    Sketcher.Constraint("DistanceX", 26, 2, 28, 2, 1.624499),
    Sketcher.Constraint("DistanceX", 33, 2, 32, 2, 0.1248),
    Sketcher.Constraint("DistanceX", 29, 2, 34, 2, 1.813101),
    Sketcher.Constraint("DistanceX", 34, 2, 35, 2, 1.063602),
    Sketcher.Constraint("DistanceX", 43, 2, 31, 2, 7.243702),
    Sketcher.Constraint("DistanceY", 40, 2, 45, 2, 1.625901),
    Sketcher.Constraint("DistanceX", 56, 2, 8, 2, 6.380601),
    Sketcher.Constraint("DistanceX", 59, 2, 58, 2, 0.061699),
    Sketcher.Constraint("Distance", 19, 1.99026),
    Sketcher.Constraint("Distance", 20, 0.344668),
    Sketcher.Constraint("Distance", 21, 1.640889),
    Sketcher.Constraint("Distance", 22, 1.37211),
    Sketcher.Constraint("Distance", 23, 1.640889),
    Sketcher.Constraint("Distance", 24, 0.342481),
    Sketcher.Constraint("Distance", 25, 1.640889),
    Sketcher.Constraint("Distance", 28, 0.344668),
    Sketcher.Constraint("Distance", 31, 3.867659),
    Sketcher.Constraint("Distance", 37, 1.39951),
    Sketcher.Constraint("Distance", 38, 1.195681),
    Sketcher.Constraint("Distance", 40, 0.37884),
    Sketcher.Constraint("Distance", 42, 0.07575),
    Sketcher.Constraint("Distance", 44, 0.37884),
    Sketcher.Constraint("Distance", 45, 2.937619),
    Sketcher.Constraint("Distance", 55, 3.471249),
    Sketcher.Constraint("Distance", 60, 3.471249),
    Sketcher.Constraint("Distance", 63, 3.519778),
    Sketcher.Constraint("Distance", 64, 0.075451),
    Sketcher.Constraint("DistanceX", -1, 1, 19, 2, 5.972659),
    Sketcher.Constraint("DistanceY", -1, 1, 19, 2, 8.91739),
    Sketcher.Constraint("DistanceY", -1, 1, 20, 2, 9.222378),
    Sketcher.Constraint("DistanceX", -1, 1, 23, 2, 6.77334),
    Sketcher.Constraint("DistanceY", -1, 1, 23, 2, 10.43602),
    Sketcher.Constraint("DistanceY", -1, 1, 25, 2, 11.50453),
    Sketcher.Constraint("DistanceX", -1, 1, 26, 2, 5.99229),
    Sketcher.Constraint("DistanceY", -1, 1, 28, 2, 12.005131),
    Sketcher.Constraint("DistanceY", -1, 1, 34, 2, 10.465578),
    Sketcher.Constraint("DistanceX", 36, 2, -1, 1, 4.01378),
    Sketcher.Constraint("DistanceY", -1, 1, 39, 2, 11.454861),
    Sketcher.Constraint("DistanceX", 40, 2, -1, 1, 14.03743),
    Sketcher.Constraint("DistanceY", 40, 2, -1, 1, 2.034682),
    Sketcher.Constraint("DistanceY", -1, 1, 43, 2, 1.048852),
    Sketcher.Constraint("DistanceX", 44, 2, -1, 1, 14.132082),
    Sketcher.Constraint("DistanceX", 46, 2, -1, 1, 14.050751),
    Sketcher.Constraint("DistanceX", -1, 1, 55, 2, 7.584671),
    Sketcher.Constraint("DistanceX", -1, 1, 58, 2, 5.495328),
    Sketcher.Constraint("DistanceX", -1, 1, 60, 2, 7.565741),
    Sketcher.Constraint("DistanceY", 60, 2, -1, 1, 11.946561),
    Sketcher.Constraint("DistanceX", -1, 1, 62, 2, 6.203461),
    Sketcher.Constraint("DistanceY", 62, 2, -1, 1, 9.63987),
    Sketcher.Constraint("DistanceY", 64, 2, -1, 1, 10.272282),
    Sketcher.Constraint("DistanceX", 18, 2, 17, 2, 1.63151),
    Sketcher.Constraint("DistanceY", 18, 2, 17, 2, 3.09405),
    Sketcher.Constraint("DistanceX", 18, 2, 21, 2, 0.469752),
    Sketcher.Constraint("DistanceY", 26, 2, 17, 2, 0.467648),
    Sketcher.Constraint("DistanceX", 25, 2, 27, 2, 1.974359),
    Sketcher.Constraint("DistanceY", 21, 2, 29, 2, 2.12451),
    Sketcher.Constraint("DistanceY", 30, 2, 29, 2, 0.044171),
    Sketcher.Constraint("DistanceX", 30, 2, 18, 2, 11.498759),
    Sketcher.Constraint("DistanceY", 31, 2, 32, 2, 0.201222),
    Sketcher.Constraint("DistanceX", 30, 2, 32, 2, 0.719351),
    Sketcher.Constraint("DistanceY", 32, 2, 33, 2, 1.267628),
    Sketcher.Constraint("DistanceY", 35, 2, 29, 2, 2.350861),
    Sketcher.Constraint("DistanceY", 35, 2, 36, 2, 0.194211),
    Sketcher.Constraint("DistanceX", 37, 2, 34, 2, 0.305689),
    Sketcher.Constraint("DistanceX", 38, 2, 33, 2, 0.038562),
    Sketcher.Constraint("DistanceX", 41, 2, 32, 2, 4.041679),
    Sketcher.Constraint("DistanceY", 41, 2, 42, 2, 0.075721),
    Sketcher.Constraint("DistanceY", 42, 2, 31, 2, 8.563461),
    Sketcher.Constraint("DistanceY", 56, 2, 0, 2, 10.164289),
    Sketcher.Constraint("DistanceX", 56, 2, 57, 2, 1.61258),
    Sketcher.Constraint("DistanceY", 57, 2, 8, 2, 10.540791),
    Sketcher.Constraint("DistanceX", 60, 2, 61, 2, 0.269932),
    Sketcher.Constraint("DistanceY", 61, 2, 57, 2, 1.911959),
])
pocket2 = doc.addObject("PartDesign::Pocket", "Pocket001")
body.addObject(pocket2)
pocket2.Profile = sketch4
pocket2.Length = 1

doc.recompute()
